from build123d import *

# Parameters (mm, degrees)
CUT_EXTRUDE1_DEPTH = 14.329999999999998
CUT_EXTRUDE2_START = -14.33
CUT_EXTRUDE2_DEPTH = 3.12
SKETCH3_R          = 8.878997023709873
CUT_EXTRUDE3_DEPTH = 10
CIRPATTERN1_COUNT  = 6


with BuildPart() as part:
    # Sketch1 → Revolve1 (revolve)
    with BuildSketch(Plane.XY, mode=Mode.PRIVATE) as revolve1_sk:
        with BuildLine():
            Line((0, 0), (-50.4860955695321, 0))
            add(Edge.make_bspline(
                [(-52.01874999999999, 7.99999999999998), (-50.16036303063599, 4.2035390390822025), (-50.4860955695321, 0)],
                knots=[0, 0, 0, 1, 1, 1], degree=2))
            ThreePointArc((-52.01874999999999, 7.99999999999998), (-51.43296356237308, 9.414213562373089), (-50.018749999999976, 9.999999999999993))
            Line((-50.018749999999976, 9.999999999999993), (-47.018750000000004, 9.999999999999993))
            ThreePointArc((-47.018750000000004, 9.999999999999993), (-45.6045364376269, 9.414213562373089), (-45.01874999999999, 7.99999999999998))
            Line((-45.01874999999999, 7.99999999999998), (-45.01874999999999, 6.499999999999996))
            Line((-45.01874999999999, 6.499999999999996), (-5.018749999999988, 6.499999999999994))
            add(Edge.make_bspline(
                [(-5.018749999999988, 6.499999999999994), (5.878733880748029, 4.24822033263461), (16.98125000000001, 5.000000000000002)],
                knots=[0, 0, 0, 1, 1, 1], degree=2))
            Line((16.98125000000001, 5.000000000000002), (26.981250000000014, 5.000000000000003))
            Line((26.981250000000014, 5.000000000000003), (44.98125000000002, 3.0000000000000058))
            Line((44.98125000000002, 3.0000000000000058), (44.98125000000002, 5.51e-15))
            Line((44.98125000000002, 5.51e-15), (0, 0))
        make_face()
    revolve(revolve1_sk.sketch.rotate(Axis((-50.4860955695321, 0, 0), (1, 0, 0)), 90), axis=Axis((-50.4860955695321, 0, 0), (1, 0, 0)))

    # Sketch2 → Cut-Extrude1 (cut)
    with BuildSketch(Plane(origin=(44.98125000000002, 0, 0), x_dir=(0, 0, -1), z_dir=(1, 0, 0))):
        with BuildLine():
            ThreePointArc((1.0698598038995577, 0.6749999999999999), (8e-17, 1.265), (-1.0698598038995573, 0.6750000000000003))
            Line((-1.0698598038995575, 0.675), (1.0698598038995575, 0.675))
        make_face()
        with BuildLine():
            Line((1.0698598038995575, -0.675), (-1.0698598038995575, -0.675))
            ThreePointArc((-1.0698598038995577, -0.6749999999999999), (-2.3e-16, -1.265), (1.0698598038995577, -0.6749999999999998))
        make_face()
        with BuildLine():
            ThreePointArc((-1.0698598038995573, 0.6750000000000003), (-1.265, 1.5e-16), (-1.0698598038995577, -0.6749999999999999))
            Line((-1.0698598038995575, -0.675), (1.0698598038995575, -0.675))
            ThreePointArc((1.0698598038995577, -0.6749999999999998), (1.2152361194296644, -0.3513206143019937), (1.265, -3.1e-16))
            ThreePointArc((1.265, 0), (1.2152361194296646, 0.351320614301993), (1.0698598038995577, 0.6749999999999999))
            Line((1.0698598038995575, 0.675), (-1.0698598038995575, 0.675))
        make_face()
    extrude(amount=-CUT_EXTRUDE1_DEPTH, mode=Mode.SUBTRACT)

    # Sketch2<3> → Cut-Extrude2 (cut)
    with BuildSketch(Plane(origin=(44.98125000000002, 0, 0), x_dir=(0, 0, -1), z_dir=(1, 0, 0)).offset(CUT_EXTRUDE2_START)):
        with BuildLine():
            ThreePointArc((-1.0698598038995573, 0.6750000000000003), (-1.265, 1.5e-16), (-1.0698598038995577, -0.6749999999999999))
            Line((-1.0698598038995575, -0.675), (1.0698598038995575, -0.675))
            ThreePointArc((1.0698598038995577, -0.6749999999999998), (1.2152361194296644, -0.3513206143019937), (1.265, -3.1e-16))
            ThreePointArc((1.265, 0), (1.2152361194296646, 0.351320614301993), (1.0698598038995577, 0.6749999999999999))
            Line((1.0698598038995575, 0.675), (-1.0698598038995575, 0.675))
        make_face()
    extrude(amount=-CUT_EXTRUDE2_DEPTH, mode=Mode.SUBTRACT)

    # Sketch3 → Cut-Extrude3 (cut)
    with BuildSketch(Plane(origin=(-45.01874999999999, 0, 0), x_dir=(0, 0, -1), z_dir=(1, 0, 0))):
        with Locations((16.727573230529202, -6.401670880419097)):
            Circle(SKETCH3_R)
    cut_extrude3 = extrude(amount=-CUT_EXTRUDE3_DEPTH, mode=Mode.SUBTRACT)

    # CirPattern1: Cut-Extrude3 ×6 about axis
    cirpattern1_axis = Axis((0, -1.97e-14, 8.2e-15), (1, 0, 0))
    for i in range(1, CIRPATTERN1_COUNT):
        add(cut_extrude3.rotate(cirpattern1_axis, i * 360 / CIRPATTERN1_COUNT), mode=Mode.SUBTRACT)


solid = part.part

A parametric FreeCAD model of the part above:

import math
import FreeCAD as App
import Part
import Sketcher

V = App.Vector

doc = App.newDocument("Part")
params = doc.addObject("Spreadsheet::Sheet", "Params")
for row, (alias, value) in enumerate([
    ("sketch1_radius", "2 mm"),
    ("sketch1_width", "10 mm"),
    ("sketch1_width2", "40 mm"),
    ("revolution_angle", "360 deg"),
    ("sketch2_diameter", "2.53 mm"),
    ("pocket1_length", "14.33 mm"),
    ("pocket2_length", "3.12 mm"),
    ("pocket3_length", "10 mm"),
], start=1):
    params.set(f"A{row}", alias)
    params.set(f"B{row}", "=" + value)
    params.setAlias(f"B{row}", alias)

body = doc.addObject("PartDesign::Body", "Body")

sketch1 = doc.addObject("Sketcher::SketchObject", "Sketch")
body.addObject(sketch1)
sketch1.AttachmentSupport = (doc.XY_Plane, [""])
sketch1.MapMode = "FlatFace"
sketch1.addGeometry(Part.BSplineCurve([V(-52.01875, 8, 0), V(-50.160363, 4.203539, 0), V(-50.486096, 0, 0)], [3, 3], [0, 1], False, 2, [1, 1, 1], False), False)
sketch1.addGeometry(Part.LineSegment(V(-50.486096, 0, 0), V(44.98125, 0, 0)), False)
sketch1.addGeometry(Part.LineSegment(V(44.98125, 0, 0), V(44.98125, 3, 0)), False)
sketch1.addGeometry(Part.LineSegment(V(44.98125, 3, 0), V(26.98125, 5, 0)), False)
sketch1.addGeometry(Part.LineSegment(V(26.98125, 5, 0), V(16.98125, 5, 0)), False)
sketch1.addGeometry(Part.BSplineCurve([V(-5.01875, 6.5, 0), V(5.878734, 4.24822, 0), V(16.98125, 5, 0)], [3, 3], [0, 1], False, 2, [1, 1, 1], False), False)
sketch1.addGeometry(Part.LineSegment(V(-5.01875, 6.5, 0), V(-45.01875, 6.5, 0)), False)
sketch1.addGeometry(Part.LineSegment(V(-45.01875, 6.5, 0), V(-45.01875, 8, 0)), False)
sketch1.addGeometry(Part.ArcOfCircle(Part.Circle(V(-47.01875, 8, 0), V(0, 0, 1), 2), math.radians(0), math.radians(90)), False)
sketch1.addGeometry(Part.LineSegment(V(-47.01875, 10, 0), V(-50.01875, 10, 0)), False)
sketch1.addGeometry(Part.ArcOfCircle(Part.Circle(V(-50.01875, 8, 0), V(0, 0, 1), 2), math.radians(90), math.radians(180)), False)
sketch1.addConstraint(Sketcher.Constraint("Block", 0))
sketch1.addConstraint(Sketcher.Constraint("Block", 5))
sketch1.addConstraint(Sketcher.Constraint("Coincident", 0, 2, 1, 1))
sketch1.addConstraint(Sketcher.Constraint("Coincident", 1, 2, 2, 1))
sketch1.addConstraint(Sketcher.Constraint("Coincident", 2, 2, 3, 1))
sketch1.addConstraint(Sketcher.Constraint("Coincident", 3, 2, 4, 1))
sketch1.addConstraint(Sketcher.Constraint("Coincident", 4, 2, 5, 2))
sketch1.addConstraint(Sketcher.Constraint("Coincident", 5, 1, 6, 1))
sketch1.addConstraint(Sketcher.Constraint("Coincident", 6, 2, 7, 1))
sketch1.addConstraint(Sketcher.Constraint("Tangent", 7, 2, 8, 1))
sketch1.addConstraint(Sketcher.Constraint("Tangent", 8, 2, 9, 1))
sketch1.addConstraint(Sketcher.Constraint("Tangent", 9, 2, 10, 1))
sketch1.addConstraint(Sketcher.Constraint("Coincident", 10, 2, 0, 1))
sketch1.addConstraint(Sketcher.Constraint("Horizontal", 1))
sketch1.addConstraint(Sketcher.Constraint("Vertical", 2))
sketch1.addConstraint(Sketcher.Constraint("Horizontal", 4))
sketch1.addConstraint(Sketcher.Constraint("Horizontal", 6))
sketch1.addConstraint(Sketcher.Constraint("Vertical", 7))
sketch1.addConstraint(Sketcher.Constraint("Horizontal", 9))
sketch1.addConstraint(Sketcher.Constraint("Equal", 8, 10))
sketch1.addConstraint(Sketcher.Constraint("Horizontal", 7, 2, 10, 2))
sketch1.addConstraint(Sketcher.Constraint("Equal", 9, 2))
sketch1.addConstraint(Sketcher.Constraint("Radius", 8, 2.0))
sketch1.addConstraint(Sketcher.Constraint("DistanceX", 4, 2, 4, 1, 10.0))
sketch1.addConstraint(Sketcher.Constraint("DistanceX", 6, 2, 6, 1, 40.0))
sketch1.addConstraint(Sketcher.Constraint("DistanceX", 8, 3, 1, 2, 92.0))
sketch1.setExpression("Constraints[22]", "Params.sketch1_radius")
sketch1.setExpression("Constraints[23]", "Params.sketch1_width")
sketch1.setExpression("Constraints[24]", "Params.sketch1_width2")
revolution = doc.addObject("PartDesign::Revolution", "Revolution")
body.addObject(revolution)
revolution.Profile = sketch1
revolution.ReferenceAxis = (sketch1, ["H_Axis"])
revolution.setExpression("Angle", "Params.revolution_angle")

sketch2 = doc.addObject("Sketcher::SketchObject", "Sketch001")
body.addObject(sketch2)
sketch2.AttachmentSupport = (doc.YZ_Plane, [""])
sketch2.MapMode = "FlatFace"
sketch2.AttachmentOffset = App.Placement(V(0, 0, 44.98125), App.Rotation())
sketch2.addGeometry(Part.Circle(V(0, 0, 0), V(0, 0, 1), 1.3), False)
sketch2.addConstraint(Sketcher.Constraint("Coincident", 0, 3, -1, 1))
sketch2.addConstraint(Sketcher.Constraint("Diameter", 0, 2.53))
sketch2.setExpression("Constraints[1]", "Params.sketch2_diameter")
pocket1 = doc.addObject("PartDesign::Pocket", "Pocket")
body.addObject(pocket1)
pocket1.Profile = sketch2
pocket1.setExpression("Length", "Params.pocket1_length")

sketch3 = doc.addObject("Sketcher::SketchObject", "Sketch002")
body.addObject(sketch3)
sketch3.AttachmentSupport = (doc.YZ_Plane, [""])
sketch3.MapMode = "FlatFace"
sketch3.AttachmentOffset = App.Placement(V(0, 0, 30.65125), App.Rotation())
sketch3.addGeometry(Part.ArcOfCircle(Part.Circle(V(0, 0, 0), V(0, 0, 1), 1.3), math.radians(58), math.radians(122)), False)
sketch3.addGeometry(Part.LineSegment(V(-0.7, 1.1, 0), V(-0.7, -1.1, 0)), False)
sketch3.addGeometry(Part.ArcOfCircle(Part.Circle(V(0, 0, 0), V(0, 0, 1), 1.3), math.radians(-122), math.radians(-58)), False)
sketch3.addGeometry(Part.LineSegment(V(0.7, -1.1, 0), V(0.7, 1.1, 0)), False)
sketch3.addConstraint(Sketcher.Constraint("Coincident", 0, 2, 1, 1))
sketch3.addConstraint(Sketcher.Constraint("Coincident", 1, 2, 2, 1))
sketch3.addConstraint(Sketcher.Constraint("Coincident", 2, 2, 3, 1))
sketch3.addConstraint(Sketcher.Constraint("Coincident", 3, 2, 0, 1))
sketch3.addConstraint(Sketcher.Constraint("Vertical", 1))
sketch3.addConstraint(Sketcher.Constraint("Vertical", 3))
sketch3.addConstraint(Sketcher.Constraint("Coincident", 0, 3, -1, 1))
sketch3.addConstraint(Sketcher.Constraint("Coincident", 2, 3, -1, 1))
sketch3.addConstraint(Sketcher.Constraint("Equal", 0, 2))
sketch3.addConstraint(Sketcher.Constraint("Horizontal", 1, 2, 2, 2))
sketch3.addConstraint(Sketcher.Constraint("Radius", 0, 1.265))
sketch3.addConstraint(Sketcher.Constraint("DistanceX", 1, 2, 2, 2, 1.35))
pocket2 = doc.addObject("PartDesign::Pocket", "Pocket001")
body.addObject(pocket2)
pocket2.Profile = sketch3
pocket2.setExpression("Length", "Params.pocket2_length")

sketch4 = doc.addObject("Sketcher::SketchObject", "Sketch003")
body.addObject(sketch4)
sketch4.AttachmentSupport = (doc.YZ_Plane, [""])
sketch4.MapMode = "FlatFace"
sketch4.AttachmentOffset = App.Placement(V(0, 0, -45.01875), App.Rotation())
sketch4.addGeometry(Part.Circle(V(-6, -17, 0), V(0, 0, 1), 9), False)
sketch4.addConstraint(Sketcher.Constraint("Diameter", 0, 17.757994))
sketch4.addConstraint(Sketcher.Constraint("DistanceX", 0, 3, -1, 1, 6.401671))
sketch4.addConstraint(Sketcher.Constraint("DistanceY", 0, 3, -1, 1, 16.727573))
pocket3 = doc.addObject("PartDesign::Pocket", "Pocket002")
body.addObject(pocket3)
pocket3.Profile = sketch4
pocket3.setExpression("Length", "Params.pocket3_length")
doc.recompute()

polarpattern = doc.addObject("PartDesign::PolarPattern", "PolarPattern")
body.addObject(polarpattern)
polarpattern.Originals = [pocket3]
polarpattern.Axis = (doc.X_Axis, [""])
polarpattern.Angle = 360
polarpattern.Occurrences = 6
body.Tip = polarpattern

doc.recompute()
